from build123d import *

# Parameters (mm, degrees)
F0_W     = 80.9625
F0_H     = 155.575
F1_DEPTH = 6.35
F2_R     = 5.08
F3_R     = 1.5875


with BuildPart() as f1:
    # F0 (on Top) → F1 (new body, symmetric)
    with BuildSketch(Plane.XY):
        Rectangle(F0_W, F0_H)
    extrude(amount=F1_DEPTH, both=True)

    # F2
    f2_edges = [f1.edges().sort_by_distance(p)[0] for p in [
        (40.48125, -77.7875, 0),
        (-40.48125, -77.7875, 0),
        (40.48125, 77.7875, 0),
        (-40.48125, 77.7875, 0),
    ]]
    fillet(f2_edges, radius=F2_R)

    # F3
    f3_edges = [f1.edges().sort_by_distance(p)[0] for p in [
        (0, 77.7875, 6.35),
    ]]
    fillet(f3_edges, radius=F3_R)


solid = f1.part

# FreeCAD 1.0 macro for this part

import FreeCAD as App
import Part
import Sketcher
Q = App.Units.Quantity


def edges_at(feature, points):
    """Names of the edges that pass closest to the given points."""
    edges = feature.Shape.Edges
    near = lambda p: min(range(len(edges)), key=lambda i: edges[i].distToShape(Part.Vertex(*p))[0])
    return sorted({f"Edge{near(p) + 1}" for p in points})


def add_polygon(sketch, points):
    """Adds a closed chain of lines whose ends are joined by coincident constraints."""
    first, n = sketch.GeometryCount, len(points)
    for a, b in zip(points, points[1:] + points[:1]):
        sketch.addGeometry(Part.LineSegment(App.Vector(*a, 0), App.Vector(*b, 0)), False)
    for i in range(n):
        sketch.addConstraint(Sketcher.Constraint("Coincident", first + i, 2, first + (i + 1) % n, 1))

doc = App.newDocument("Part")
body = doc.addObject("PartDesign::Body", "Body")

# Sketch on XY plane
sketch1 = doc.addObject("Sketcher::SketchObject", "Sketch")
body.addObject(sketch1)
sketch1.AttachmentSupport = (doc.XY_Plane, [""])
sketch1.MapMode = "FlatFace"
add_polygon(sketch1, [(-40, 78), (-40, -78), (40, -78), (40, 78)])  # lines 0-3
sketch1.addConstraint([
    Sketcher.Constraint("Vertical", 0),
    Sketcher.Constraint("Horizontal", 1),
    Sketcher.Constraint("Vertical", 2),
    Sketcher.Constraint("Horizontal", 3),
    Sketcher.Constraint("Symmetric", 0, 2, 2, 2, -1, 1),
    Sketcher.Constraint("DistanceX", 1, 1, 1, 2, Q("3.1875 in")),
    Sketcher.Constraint("DistanceY", 0, 2, 0, 1, Q("6.125 in")),
])
pad1 = doc.addObject("PartDesign::Pad", "Pad")
body.addObject(pad1)
pad1.Profile = sketch1
pad1.Length = Q("0.5 in")
pad1.Midplane = True
doc.recompute()

fillet = doc.addObject("PartDesign::Fillet", "Fillet")
body.addObject(fillet)
fillet.Base = (pad1, edges_at(pad1, [
    (40.481, -77.787, 0),
    (-40.481, -77.787, 0),
    (40.481, 77.787, 0),
    (-40.481, 77.787, 0),
]))
fillet.Radius = Q("0.2 in")
doc.recompute()

fillet2 = doc.addObject("PartDesign::Fillet", "Fillet001")
body.addObject(fillet2)
fillet2.Base = (fillet, edges_at(fillet, [(0, 77.787, 6.35)]))
fillet2.Radius = Q("0.0625 in")

doc.recompute()
